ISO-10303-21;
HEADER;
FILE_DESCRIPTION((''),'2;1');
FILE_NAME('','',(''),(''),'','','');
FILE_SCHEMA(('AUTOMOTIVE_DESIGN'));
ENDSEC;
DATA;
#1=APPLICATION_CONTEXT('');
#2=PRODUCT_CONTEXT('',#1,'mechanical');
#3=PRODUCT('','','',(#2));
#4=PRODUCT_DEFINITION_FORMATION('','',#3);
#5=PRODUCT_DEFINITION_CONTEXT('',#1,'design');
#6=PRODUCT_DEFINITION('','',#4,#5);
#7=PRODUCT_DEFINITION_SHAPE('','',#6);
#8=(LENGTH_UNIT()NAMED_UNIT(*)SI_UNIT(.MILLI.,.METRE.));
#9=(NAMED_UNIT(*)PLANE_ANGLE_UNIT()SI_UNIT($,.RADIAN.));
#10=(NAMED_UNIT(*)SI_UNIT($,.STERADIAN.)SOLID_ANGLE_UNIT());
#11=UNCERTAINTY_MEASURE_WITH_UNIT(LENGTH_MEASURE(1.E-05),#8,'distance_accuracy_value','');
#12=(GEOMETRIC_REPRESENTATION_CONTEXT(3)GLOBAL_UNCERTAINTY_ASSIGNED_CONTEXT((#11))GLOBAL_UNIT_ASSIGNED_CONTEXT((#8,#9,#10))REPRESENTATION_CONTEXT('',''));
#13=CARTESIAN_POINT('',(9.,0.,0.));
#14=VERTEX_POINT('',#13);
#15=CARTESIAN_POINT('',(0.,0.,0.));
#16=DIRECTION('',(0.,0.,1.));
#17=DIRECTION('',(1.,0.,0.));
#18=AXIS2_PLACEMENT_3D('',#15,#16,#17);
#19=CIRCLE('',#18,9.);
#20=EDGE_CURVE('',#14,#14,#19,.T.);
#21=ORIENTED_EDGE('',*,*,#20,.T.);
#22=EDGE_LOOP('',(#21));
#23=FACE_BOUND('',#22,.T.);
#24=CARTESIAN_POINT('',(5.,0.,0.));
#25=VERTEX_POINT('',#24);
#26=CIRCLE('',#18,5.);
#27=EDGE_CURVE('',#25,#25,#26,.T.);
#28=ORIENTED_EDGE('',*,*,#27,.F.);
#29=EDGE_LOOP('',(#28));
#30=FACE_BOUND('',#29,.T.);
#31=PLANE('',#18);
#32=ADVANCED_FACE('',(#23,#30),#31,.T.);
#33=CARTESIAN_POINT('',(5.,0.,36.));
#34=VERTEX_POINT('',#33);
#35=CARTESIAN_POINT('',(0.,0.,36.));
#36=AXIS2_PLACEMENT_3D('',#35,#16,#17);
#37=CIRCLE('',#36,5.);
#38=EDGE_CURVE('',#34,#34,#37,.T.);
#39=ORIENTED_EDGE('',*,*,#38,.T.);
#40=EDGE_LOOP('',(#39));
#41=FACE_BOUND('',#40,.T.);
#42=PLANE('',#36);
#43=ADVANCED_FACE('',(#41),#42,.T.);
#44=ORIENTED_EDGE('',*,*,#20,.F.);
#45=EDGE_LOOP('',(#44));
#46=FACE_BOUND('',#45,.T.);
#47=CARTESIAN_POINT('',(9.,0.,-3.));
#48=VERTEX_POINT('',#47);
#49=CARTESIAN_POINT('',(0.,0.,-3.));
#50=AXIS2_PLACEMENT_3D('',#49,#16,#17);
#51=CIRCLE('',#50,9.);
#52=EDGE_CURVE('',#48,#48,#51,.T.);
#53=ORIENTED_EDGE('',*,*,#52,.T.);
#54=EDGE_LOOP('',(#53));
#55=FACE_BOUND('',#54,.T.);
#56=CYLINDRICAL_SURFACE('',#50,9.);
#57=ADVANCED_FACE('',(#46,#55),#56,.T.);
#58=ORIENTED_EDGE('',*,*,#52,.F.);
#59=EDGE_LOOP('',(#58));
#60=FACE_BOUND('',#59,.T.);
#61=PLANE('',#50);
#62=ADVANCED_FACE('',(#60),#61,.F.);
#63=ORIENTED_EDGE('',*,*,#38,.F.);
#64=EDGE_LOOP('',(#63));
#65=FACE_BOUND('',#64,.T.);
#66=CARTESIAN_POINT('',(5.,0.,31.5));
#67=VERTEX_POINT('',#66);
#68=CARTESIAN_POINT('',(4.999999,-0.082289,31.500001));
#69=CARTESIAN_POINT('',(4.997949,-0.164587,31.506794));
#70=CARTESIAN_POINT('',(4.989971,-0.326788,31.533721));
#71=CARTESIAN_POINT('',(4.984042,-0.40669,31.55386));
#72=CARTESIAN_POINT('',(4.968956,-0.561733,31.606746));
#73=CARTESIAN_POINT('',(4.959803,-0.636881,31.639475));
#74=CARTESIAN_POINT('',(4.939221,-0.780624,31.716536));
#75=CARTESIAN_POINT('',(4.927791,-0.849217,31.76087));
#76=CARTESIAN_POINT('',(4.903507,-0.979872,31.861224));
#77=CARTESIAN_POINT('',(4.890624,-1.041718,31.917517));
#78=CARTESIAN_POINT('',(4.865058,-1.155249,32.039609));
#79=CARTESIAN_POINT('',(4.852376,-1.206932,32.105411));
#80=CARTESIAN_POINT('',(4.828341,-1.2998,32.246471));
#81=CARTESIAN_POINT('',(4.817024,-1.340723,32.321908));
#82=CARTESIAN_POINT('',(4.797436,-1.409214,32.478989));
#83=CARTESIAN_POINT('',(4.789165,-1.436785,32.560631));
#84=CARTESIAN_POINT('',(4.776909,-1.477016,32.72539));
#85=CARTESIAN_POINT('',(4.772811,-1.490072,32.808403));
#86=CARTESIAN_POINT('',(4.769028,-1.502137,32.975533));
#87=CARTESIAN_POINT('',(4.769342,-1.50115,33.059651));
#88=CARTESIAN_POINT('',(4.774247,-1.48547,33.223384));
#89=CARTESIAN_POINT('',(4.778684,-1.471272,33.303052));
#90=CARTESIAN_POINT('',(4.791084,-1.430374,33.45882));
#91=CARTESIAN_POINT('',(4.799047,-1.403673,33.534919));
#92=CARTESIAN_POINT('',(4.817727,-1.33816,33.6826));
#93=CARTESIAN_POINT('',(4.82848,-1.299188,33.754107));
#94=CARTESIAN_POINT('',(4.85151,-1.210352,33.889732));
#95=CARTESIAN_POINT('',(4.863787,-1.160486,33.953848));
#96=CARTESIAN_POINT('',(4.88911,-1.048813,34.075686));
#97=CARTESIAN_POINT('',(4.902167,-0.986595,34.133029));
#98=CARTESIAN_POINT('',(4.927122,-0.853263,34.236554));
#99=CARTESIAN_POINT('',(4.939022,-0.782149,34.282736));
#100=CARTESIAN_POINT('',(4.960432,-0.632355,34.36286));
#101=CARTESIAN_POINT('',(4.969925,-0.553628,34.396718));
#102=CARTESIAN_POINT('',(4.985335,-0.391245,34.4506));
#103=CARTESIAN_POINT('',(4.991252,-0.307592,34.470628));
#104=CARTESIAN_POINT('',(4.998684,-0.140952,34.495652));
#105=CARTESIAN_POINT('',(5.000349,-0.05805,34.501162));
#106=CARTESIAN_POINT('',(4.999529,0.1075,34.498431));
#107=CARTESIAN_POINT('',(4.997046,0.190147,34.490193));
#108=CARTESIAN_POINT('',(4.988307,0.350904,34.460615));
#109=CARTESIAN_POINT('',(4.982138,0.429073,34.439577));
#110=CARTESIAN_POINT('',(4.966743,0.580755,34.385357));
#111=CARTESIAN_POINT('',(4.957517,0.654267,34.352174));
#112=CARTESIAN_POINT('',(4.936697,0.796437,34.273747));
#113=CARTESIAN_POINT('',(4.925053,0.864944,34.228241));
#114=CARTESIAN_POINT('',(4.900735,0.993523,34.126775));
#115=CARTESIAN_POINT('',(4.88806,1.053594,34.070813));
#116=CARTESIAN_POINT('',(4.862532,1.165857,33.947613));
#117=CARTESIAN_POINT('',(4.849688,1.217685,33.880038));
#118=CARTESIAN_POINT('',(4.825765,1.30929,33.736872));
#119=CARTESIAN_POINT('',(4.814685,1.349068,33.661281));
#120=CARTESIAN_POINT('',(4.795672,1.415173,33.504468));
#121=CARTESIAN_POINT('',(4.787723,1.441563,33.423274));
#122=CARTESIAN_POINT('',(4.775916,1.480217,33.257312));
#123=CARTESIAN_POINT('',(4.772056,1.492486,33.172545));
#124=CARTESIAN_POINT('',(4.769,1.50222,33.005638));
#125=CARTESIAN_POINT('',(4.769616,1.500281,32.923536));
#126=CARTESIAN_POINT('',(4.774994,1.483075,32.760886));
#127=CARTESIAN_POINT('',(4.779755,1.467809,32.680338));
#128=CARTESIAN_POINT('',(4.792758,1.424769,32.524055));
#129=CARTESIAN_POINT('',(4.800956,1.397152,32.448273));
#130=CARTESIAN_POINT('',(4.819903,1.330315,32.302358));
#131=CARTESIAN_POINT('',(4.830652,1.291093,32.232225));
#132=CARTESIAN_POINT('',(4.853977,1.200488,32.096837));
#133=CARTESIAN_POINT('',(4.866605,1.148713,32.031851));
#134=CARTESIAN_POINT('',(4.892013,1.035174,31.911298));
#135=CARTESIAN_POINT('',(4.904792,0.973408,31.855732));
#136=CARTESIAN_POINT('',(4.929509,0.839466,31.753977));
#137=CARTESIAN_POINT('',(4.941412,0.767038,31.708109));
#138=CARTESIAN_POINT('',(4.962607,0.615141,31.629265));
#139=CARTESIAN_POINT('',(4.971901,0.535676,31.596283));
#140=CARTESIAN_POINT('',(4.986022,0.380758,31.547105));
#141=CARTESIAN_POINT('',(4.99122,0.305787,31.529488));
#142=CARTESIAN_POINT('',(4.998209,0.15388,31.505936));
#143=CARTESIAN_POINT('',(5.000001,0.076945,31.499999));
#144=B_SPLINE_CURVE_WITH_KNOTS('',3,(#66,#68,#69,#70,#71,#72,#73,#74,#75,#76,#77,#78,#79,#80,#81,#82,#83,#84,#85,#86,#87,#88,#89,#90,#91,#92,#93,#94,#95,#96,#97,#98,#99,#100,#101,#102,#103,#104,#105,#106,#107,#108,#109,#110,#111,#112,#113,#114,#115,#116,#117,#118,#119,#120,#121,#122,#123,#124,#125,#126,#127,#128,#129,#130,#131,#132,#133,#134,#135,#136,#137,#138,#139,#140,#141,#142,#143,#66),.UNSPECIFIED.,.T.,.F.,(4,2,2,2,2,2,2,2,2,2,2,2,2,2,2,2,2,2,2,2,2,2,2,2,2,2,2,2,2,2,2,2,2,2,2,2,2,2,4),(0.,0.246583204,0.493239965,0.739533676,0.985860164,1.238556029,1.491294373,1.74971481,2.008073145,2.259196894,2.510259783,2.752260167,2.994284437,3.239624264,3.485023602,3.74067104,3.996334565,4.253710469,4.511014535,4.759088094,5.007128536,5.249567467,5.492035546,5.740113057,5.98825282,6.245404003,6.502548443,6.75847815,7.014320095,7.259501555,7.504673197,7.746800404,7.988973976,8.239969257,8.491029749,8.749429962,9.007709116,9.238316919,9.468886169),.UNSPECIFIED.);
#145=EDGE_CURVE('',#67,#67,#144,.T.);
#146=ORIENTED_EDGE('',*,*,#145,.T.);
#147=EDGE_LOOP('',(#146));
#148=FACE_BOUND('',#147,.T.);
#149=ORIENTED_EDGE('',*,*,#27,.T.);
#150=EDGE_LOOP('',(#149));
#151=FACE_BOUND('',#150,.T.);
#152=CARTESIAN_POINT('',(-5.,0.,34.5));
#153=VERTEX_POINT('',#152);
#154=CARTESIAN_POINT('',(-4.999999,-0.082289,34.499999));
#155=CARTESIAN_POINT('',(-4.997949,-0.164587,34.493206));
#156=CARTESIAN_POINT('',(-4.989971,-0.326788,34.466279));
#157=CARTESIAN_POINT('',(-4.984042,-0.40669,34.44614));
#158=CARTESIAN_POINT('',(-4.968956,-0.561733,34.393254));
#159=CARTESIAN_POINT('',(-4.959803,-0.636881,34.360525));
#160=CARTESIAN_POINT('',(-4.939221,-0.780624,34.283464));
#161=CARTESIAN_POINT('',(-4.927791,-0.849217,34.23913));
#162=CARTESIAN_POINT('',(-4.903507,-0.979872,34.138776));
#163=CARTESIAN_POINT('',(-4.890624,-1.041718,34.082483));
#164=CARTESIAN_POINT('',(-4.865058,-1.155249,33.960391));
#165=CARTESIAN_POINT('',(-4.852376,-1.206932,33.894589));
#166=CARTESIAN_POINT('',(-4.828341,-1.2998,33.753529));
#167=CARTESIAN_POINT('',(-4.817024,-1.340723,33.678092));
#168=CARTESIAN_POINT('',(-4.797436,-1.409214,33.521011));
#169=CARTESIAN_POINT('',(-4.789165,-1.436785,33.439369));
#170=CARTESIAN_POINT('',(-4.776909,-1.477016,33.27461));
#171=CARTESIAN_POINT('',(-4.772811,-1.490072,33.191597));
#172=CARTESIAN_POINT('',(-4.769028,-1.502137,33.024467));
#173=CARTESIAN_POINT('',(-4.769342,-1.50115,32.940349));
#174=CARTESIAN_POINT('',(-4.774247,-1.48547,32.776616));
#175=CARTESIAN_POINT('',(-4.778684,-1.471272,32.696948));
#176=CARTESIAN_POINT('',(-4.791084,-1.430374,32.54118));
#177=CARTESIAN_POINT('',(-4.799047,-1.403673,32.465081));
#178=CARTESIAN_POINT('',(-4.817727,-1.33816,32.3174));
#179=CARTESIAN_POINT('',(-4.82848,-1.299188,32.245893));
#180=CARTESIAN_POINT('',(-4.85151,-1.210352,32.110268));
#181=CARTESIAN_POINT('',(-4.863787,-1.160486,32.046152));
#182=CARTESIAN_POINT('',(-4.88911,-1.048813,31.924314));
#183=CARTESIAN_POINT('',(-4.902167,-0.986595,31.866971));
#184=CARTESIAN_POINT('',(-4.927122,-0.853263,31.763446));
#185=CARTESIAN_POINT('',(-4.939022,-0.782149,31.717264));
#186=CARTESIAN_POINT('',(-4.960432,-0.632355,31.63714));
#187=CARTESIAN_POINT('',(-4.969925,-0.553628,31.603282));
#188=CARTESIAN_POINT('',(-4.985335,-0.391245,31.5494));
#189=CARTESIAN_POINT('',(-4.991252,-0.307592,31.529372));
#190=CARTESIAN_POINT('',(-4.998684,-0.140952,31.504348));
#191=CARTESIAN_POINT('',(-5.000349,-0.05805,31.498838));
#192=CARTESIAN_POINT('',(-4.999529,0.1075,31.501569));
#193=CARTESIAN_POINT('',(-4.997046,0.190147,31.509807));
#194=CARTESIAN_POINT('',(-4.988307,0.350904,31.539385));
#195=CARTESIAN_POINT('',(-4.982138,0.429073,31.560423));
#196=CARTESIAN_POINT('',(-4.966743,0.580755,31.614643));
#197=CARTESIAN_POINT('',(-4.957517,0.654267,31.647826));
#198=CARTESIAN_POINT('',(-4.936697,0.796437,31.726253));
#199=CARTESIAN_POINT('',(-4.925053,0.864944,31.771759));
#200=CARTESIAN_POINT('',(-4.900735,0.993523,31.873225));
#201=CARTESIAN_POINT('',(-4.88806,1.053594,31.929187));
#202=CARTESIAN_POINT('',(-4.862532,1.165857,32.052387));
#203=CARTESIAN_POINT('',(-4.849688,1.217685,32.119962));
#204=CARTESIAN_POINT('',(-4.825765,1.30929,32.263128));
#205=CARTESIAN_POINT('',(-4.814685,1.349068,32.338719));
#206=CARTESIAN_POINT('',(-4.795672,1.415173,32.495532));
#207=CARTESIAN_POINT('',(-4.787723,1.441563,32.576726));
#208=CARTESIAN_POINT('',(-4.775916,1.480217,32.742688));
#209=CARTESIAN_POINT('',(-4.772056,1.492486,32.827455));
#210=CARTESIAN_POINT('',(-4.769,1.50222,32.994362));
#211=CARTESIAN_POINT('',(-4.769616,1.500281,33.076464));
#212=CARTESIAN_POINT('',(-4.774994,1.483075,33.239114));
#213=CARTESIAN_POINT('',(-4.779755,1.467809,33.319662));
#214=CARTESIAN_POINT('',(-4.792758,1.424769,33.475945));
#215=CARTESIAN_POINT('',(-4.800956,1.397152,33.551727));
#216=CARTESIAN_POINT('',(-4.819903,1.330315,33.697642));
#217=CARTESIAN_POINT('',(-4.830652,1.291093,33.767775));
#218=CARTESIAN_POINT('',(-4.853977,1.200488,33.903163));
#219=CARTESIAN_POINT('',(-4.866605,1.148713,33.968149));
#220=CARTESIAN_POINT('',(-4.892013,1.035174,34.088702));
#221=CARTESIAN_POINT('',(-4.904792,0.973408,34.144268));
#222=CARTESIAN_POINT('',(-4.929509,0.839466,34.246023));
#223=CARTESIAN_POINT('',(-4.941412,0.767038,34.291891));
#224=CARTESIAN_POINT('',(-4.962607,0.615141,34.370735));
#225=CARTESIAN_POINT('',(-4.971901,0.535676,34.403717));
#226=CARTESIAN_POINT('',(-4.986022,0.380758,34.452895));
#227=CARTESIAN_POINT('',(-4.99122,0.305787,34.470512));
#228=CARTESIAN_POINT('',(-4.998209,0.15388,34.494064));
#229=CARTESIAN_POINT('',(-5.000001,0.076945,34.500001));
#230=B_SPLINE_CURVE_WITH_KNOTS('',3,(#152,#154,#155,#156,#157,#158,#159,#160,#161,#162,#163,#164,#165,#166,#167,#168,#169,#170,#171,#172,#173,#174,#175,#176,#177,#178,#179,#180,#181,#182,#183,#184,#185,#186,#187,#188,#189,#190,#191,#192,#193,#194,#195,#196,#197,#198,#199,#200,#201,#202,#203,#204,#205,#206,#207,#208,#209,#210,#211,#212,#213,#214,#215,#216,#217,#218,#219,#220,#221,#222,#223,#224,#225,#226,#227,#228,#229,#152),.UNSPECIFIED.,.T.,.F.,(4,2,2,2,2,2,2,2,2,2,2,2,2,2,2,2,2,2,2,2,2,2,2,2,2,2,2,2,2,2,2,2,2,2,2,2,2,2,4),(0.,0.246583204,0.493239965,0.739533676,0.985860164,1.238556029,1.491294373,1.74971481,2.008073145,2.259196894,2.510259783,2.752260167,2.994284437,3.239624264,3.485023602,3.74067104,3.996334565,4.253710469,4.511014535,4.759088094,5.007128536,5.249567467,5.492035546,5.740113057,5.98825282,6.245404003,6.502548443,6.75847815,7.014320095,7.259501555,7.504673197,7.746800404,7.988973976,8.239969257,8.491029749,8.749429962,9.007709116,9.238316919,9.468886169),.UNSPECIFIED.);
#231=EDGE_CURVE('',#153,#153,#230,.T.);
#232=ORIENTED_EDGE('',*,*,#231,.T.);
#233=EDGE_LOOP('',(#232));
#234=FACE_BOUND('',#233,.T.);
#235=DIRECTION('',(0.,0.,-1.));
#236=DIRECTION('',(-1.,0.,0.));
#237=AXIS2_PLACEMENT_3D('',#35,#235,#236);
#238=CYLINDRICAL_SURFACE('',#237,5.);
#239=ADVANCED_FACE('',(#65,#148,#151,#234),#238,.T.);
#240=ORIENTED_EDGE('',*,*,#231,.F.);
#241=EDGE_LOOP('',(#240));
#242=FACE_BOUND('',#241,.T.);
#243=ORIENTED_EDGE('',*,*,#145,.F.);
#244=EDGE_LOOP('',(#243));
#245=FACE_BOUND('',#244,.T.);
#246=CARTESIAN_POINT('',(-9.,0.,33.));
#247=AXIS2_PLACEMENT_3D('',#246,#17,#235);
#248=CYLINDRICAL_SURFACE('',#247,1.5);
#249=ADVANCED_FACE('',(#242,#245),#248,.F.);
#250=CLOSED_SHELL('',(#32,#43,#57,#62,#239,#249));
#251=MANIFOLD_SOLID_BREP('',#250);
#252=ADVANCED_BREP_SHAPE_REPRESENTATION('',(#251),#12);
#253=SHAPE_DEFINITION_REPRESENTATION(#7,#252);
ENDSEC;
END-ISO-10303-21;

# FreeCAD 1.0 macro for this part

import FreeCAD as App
import Part
import Sketcher
from FreeCAD import Vector

doc = App.newDocument("Part")
body = doc.addObject("PartDesign::Body", "Body")

sketch1 = body.newObject("Sketcher::SketchObject", "Sketch")
sketch1.AttachmentSupport = (doc.getObject("XY_Plane"), [""])
sketch1.MapMode = "FlatFace"
sketch1.addGeometry(Part.Circle(Vector(0, 0, 0), Vector(0, 0, 1), 5), False)
sketch1.addConstraint([
    Sketcher.Constraint("Coincident", 0, 3, -1, 1),
    Sketcher.Constraint("Diameter", 0, 10.0),
])
pad1 = body.newObject("PartDesign::Pad", "Pad")
pad1.Profile = sketch1
pad1.Length = 36

sketch2 = body.newObject("Sketcher::SketchObject", "Sketch001")
sketch2.AttachmentSupport = (doc.getObject("XY_Plane"), [""])
sketch2.MapMode = "FlatFace"
sketch2.addGeometry(Part.Circle(Vector(0, 0, 0), Vector(0, 0, 1), 9), False)
sketch2.addConstraint([
    Sketcher.Constraint("Coincident", 0, 3, -1, 1),
    Sketcher.Constraint("Diameter", 0, 18.0),
])
pad2 = body.newObject("PartDesign::Pad", "Pad001")
pad2.Profile = sketch2
pad2.Length = 3
pad2.Reversed = True

sketch3 = body.newObject("Sketcher::SketchObject", "Sketch002")
sketch3.AttachmentSupport = (doc.getObject("YZ_Plane"), [""])
sketch3.MapMode = "FlatFace"
sketch3.addGeometry(Part.Circle(Vector(0, 33, 0), Vector(0, 0, 1), 1.5), False)
sketch3.addConstraint([
    Sketcher.Constraint("PointOnObject", 0, 3, -2),
    Sketcher.Constraint("Diameter", 0, 3.0),
    Sketcher.Constraint("DistanceY", -1, 1, 0, 3, 33.0),
])
pocket1 = body.newObject("PartDesign::Pocket", "Pocket")
pocket1.Profile = sketch3
pocket1.Type = "ThroughAll"
pocket1.Midplane = True

doc.recompute()
